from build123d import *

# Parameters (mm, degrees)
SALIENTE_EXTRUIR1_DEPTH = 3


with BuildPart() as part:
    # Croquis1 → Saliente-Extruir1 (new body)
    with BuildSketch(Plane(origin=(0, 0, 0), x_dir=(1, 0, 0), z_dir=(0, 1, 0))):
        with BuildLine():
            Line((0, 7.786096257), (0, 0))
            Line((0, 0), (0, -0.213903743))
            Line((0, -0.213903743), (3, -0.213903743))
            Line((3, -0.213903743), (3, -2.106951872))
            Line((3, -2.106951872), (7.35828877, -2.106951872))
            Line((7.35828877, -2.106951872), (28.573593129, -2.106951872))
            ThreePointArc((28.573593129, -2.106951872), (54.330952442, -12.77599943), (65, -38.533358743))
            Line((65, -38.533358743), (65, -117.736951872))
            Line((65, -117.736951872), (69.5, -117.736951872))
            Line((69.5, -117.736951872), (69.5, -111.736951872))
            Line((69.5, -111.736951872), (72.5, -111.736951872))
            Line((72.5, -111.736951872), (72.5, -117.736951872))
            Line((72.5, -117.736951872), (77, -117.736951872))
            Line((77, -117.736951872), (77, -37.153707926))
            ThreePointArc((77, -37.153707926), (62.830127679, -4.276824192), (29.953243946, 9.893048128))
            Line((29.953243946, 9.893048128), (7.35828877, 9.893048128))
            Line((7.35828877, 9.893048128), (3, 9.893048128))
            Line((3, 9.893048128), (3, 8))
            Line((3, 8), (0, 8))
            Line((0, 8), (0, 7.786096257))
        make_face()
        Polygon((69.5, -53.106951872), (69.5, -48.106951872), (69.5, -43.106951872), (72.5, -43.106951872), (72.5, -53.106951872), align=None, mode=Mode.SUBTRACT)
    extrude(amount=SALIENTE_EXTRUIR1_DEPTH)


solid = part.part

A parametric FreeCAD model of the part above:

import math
import FreeCAD as App
import Part
import Sketcher

V = App.Vector

doc = App.newDocument("Part")
body = doc.addObject("PartDesign::Body", "Body")

# Sketch on XZ plane
sketch1 = doc.addObject("Sketcher::SketchObject", "Sketch")
body.addObject(sketch1)
sketch1.AttachmentSupport = (doc.XZ_Plane, [""])
sketch1.MapMode = "FlatFace"
sketch1.addGeometry([
    Part.LineSegment(V(0, 0.2, 0), V(3, 0.2, 0)),  # 0
    Part.LineSegment(V(3, 0.2, 0), V(3, 2.1, 0)),  # 1
    Part.LineSegment(V(3, 2.1, 0), V(28.6, 2.1, 0)),  # 2
    Part.ArcOfCircle(Part.Circle(V(28.6, 38.5, 0), V(0, 0, 1), 36.4), math.radians(-90), math.radians(0)),  # 3
    Part.LineSegment(V(65, 38.5, 0), V(65, 117.7, 0)),  # 4
    Part.LineSegment(V(65, 117.7, 0), V(69.5, 117.7, 0)),  # 5
    Part.LineSegment(V(69.5, 117.7, 0), V(69.5, 111.7, 0)),  # 6
    Part.LineSegment(V(69.5, 111.7, 0), V(72.5, 111.7, 0)),  # 7
    Part.LineSegment(V(72.5, 111.7, 0), V(72.5, 117.7, 0)),  # 8
    Part.LineSegment(V(72.5, 117.7, 0), V(77, 117.7, 0)),  # 9
    Part.LineSegment(V(77, 117.7, 0), V(77, 37.2, 0)),  # 10
    Part.ArcOfCircle(Part.Circle(V(28.6, 38.5, 0), V(0, 0, 1), 48.4), math.radians(-88), math.radians(-2)),  # 11
    Part.LineSegment(V(30, -9.9, 0), V(3, -9.9, 0)),  # 12
    Part.LineSegment(V(3, -9.9, 0), V(3, -8, 0)),  # 13
    Part.LineSegment(V(3, -8, 0), V(0, -8, 0)),  # 14
    Part.LineSegment(V(0, -8, 0), V(0, 0.2, 0)),  # 15
    Part.LineSegment(V(72.5, 53.1, 0), V(69.5, 53.1, 0)),  # 16
    Part.LineSegment(V(69.5, 53.1, 0), V(69.5, 43.1, 0)),  # 17
    Part.LineSegment(V(69.5, 43.1, 0), V(72.5, 43.1, 0)),  # 18
    Part.LineSegment(V(72.5, 43.1, 0), V(72.5, 53.1, 0)),  # 19
], False)
sketch1.addConstraint([
    Sketcher.Constraint("Coincident", 0, 2, 1, 1),
    Sketcher.Constraint("Coincident", 1, 2, 2, 1),
    Sketcher.Constraint("Tangent", 2, 2, 3, 1),
    Sketcher.Constraint("Tangent", 3, 2, 4, 1),
    Sketcher.Constraint("Coincident", 4, 2, 5, 1),
    Sketcher.Constraint("Coincident", 5, 2, 6, 1),
    Sketcher.Constraint("Coincident", 6, 2, 7, 1),
    Sketcher.Constraint("Coincident", 7, 2, 8, 1),
    Sketcher.Constraint("Coincident", 8, 2, 9, 1),
    Sketcher.Constraint("Coincident", 9, 2, 10, 1),
    Sketcher.Constraint("Coincident", 10, 2, 11, 2),
    Sketcher.Constraint("Coincident", 11, 1, 12, 1),
    Sketcher.Constraint("Coincident", 12, 2, 13, 1),
    Sketcher.Constraint("Coincident", 13, 2, 14, 1),
    Sketcher.Constraint("Coincident", 14, 2, 15, 1),
    Sketcher.Constraint("Coincident", 15, 2, 0, 1),
    Sketcher.Constraint("Coincident", 16, 2, 17, 1),
    Sketcher.Constraint("Coincident", 17, 2, 18, 1),
    Sketcher.Constraint("Coincident", 18, 2, 19, 1),
    Sketcher.Constraint("Coincident", 19, 2, 16, 1),
    Sketcher.Constraint("Horizontal", 0),
    Sketcher.Constraint("Vertical", 1),
    Sketcher.Constraint("Horizontal", 2),
    Sketcher.Constraint("Vertical", 4),
    Sketcher.Constraint("Horizontal", 5),
    Sketcher.Constraint("Vertical", 6),
    Sketcher.Constraint("Horizontal", 7),
    Sketcher.Constraint("Vertical", 8),
    Sketcher.Constraint("Horizontal", 9),
    Sketcher.Constraint("Vertical", 10),
    Sketcher.Constraint("Horizontal", 12),
    Sketcher.Constraint("Vertical", 13),
    Sketcher.Constraint("Horizontal", 14),
    Sketcher.Constraint("Vertical", 15),
    Sketcher.Constraint("Horizontal", 16),
    Sketcher.Constraint("Vertical", 17),
    Sketcher.Constraint("Horizontal", 18),
    Sketcher.Constraint("Vertical", 19),
    Sketcher.Constraint("Coincident", 11, 3, 3, 3),
    Sketcher.Constraint("PointOnObject", 14, 2, -2),
    Sketcher.Constraint("Horizontal", 5, 2, 8, 2),
    Sketcher.Constraint("Vertical", 1, 2, 12, 2),
    Sketcher.Constraint("Vertical", 6, 2, 16, 2),
    Sketcher.Constraint("Vertical", 8, 2, 18, 2),
    Sketcher.Constraint("Equal", 0, 7),
    Sketcher.Constraint("Equal", 5, 9),
    Sketcher.Constraint("Equal", 1, 13),
    Sketcher.Constraint("DistanceX", 0, 1, 0, 2, 3.0),
    Sketcher.Constraint("DistanceY", 6, 2, 6, 1, 6.0),
    Sketcher.Constraint("DistanceY", 17, 2, 17, 1, 10.0),
    Sketcher.Constraint("DistanceX", 5, 1, 5, 2, 4.5),
    Sketcher.Constraint("DistanceX", -1, 1, 3, 2, 65.0),
    Sketcher.Constraint("DistanceY", 13, 2, -1, 1, 8.0),
    Sketcher.Constraint("DistanceY", 11, 1, 2, 2, 12.0),
    Sketcher.Constraint("DistanceY", 2, 2, 4, 2, 115.63),
    Sketcher.Constraint("DistanceY", 16, 2, 6, 2, 58.63),
    Sketcher.Constraint("Radius", 3, 36.426407),
    Sketcher.Constraint("Radius", 11, 48.446056),
    Sketcher.Constraint("DistanceY", 1, 1, 1, 2, 1.893048),
])
pad1 = doc.addObject("PartDesign::Pad", "Pad")
body.addObject(pad1)
pad1.Profile = sketch1
pad1.Length = 3
pad1.Reversed = True

doc.recompute()
